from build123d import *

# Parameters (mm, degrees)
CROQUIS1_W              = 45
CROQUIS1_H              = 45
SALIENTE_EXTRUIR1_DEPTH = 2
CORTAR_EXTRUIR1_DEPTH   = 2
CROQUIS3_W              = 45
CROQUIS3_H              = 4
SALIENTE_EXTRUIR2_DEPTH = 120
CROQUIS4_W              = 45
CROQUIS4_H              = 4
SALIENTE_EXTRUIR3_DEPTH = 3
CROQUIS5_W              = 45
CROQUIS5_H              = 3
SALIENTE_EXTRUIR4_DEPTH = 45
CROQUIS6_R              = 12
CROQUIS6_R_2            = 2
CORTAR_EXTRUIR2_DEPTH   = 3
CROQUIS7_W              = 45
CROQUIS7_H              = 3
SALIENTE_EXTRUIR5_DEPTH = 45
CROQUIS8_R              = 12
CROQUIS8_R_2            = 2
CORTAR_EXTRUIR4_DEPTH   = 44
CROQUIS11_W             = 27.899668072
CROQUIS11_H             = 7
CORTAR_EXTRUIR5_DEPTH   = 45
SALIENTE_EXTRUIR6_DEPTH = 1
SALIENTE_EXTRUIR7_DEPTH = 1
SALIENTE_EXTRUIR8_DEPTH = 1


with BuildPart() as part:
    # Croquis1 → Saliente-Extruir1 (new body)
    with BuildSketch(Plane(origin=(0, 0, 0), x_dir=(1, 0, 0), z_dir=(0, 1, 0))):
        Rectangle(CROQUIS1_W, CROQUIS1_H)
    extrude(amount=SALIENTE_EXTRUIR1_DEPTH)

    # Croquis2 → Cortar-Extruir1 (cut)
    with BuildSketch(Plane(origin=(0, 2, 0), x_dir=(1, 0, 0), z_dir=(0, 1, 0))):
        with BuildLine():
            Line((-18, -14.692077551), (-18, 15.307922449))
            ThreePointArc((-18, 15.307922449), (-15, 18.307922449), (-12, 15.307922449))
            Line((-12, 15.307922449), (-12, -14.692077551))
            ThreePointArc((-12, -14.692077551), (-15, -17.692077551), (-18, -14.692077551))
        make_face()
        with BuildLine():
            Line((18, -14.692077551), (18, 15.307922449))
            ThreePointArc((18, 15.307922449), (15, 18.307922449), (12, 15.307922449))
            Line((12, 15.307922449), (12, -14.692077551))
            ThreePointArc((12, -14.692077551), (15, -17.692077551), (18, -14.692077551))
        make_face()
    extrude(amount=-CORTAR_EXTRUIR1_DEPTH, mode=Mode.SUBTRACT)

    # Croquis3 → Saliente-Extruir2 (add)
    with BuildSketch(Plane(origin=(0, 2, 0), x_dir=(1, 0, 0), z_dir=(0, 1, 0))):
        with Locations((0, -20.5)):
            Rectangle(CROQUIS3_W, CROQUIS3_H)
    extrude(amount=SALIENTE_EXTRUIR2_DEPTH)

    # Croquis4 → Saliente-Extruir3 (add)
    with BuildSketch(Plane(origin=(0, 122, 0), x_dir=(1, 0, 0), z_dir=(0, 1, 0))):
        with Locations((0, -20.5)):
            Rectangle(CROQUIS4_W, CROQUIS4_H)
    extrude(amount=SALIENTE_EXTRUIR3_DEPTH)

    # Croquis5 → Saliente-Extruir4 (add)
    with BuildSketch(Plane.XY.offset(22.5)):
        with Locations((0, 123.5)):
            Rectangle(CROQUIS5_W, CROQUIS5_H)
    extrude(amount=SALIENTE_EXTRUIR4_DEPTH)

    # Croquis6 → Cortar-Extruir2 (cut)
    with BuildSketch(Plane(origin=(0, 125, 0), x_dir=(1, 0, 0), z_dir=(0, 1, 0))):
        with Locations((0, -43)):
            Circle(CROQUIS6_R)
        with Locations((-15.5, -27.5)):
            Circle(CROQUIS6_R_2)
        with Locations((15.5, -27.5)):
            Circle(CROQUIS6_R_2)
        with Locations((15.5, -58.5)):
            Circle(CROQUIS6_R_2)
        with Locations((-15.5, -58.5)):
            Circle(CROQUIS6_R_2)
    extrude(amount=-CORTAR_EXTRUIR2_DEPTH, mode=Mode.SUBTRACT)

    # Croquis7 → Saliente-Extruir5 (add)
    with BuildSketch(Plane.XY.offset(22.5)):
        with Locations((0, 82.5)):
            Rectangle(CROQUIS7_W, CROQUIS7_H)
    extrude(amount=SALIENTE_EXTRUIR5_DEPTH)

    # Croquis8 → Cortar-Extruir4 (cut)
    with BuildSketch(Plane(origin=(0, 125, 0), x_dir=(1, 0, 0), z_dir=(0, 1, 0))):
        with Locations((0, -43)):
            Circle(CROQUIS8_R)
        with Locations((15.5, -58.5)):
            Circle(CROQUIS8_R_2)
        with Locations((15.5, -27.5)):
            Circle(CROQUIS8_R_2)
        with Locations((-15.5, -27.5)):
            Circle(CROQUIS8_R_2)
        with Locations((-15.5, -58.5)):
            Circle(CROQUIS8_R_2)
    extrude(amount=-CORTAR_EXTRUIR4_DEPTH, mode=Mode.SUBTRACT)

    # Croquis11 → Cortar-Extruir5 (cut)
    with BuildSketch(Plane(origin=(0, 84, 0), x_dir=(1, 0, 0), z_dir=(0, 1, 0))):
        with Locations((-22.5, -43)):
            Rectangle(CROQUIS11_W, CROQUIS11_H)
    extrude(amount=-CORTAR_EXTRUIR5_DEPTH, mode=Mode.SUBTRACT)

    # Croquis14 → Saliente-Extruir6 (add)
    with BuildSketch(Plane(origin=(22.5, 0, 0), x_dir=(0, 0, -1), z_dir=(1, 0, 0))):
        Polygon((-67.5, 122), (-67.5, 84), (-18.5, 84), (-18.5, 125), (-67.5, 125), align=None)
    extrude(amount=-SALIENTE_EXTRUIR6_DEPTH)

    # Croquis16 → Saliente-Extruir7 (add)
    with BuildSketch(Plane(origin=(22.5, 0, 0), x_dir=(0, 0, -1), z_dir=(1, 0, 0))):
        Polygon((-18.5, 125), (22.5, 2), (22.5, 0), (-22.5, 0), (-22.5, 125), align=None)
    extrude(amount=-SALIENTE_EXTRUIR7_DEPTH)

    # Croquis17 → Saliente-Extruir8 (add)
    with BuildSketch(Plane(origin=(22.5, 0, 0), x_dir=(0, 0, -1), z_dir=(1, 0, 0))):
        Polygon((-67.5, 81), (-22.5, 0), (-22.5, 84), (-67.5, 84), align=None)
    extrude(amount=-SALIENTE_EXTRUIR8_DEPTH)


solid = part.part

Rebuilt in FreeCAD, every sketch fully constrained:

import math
import FreeCAD as App
import Part
import Sketcher

V = App.Vector
Q = App.Units.Quantity

doc = App.newDocument("Part")
params = doc.addObject("Spreadsheet::Sheet", "Params")
for row, (alias, value) in enumerate([
    ("sketch1_width", "45 mm"),
    ("pad1_length", "2 mm"),
    ("sketch2_radius", "3 mm"),
    ("sketch2_height", "30 mm"),
    ("pocket1_length", "2 mm"),
    ("sketch3_width", "45 mm"),
    ("sketch3_height", "4 mm"),
    ("pad2_length", "120 mm"),
    ("sketch4_width", "45 mm"),
    ("sketch4_height", "4 mm"),
    ("pad3_length", "3 mm"),
    ("sketch5_width", "45 mm"),
    ("sketch5_height", "3 mm"),
    ("pad4_length", "45 mm"),
    ("sketch6_diameter", "24 mm"),
    ("sketch6_diameter2", "4 mm"),
    ("pocket2_length", "3 mm"),
    ("sketch7_width", "45 mm"),
    ("sketch7_height", "3 mm"),
    ("pad5_length", "45 mm"),
    ("sketch8_diameter", "24 mm"),
    ("sketch8_diameter2", "4 mm"),
    ("pocket3_length", "44 mm"),
    ("sketch9_height", "7 mm"),
    ("pocket4_length", "45 mm"),
    ("sketch10_width", "41 mm"),
    ("sketch10_height", "49 mm"),
    ("pad6_length", "1 mm"),
    ("sketch11_width", "125 mm"),
    ("sketch11_width2", "2 mm"),
    ("sketch11_height", "4 mm"),
    ("sketch11_height2", "45 mm"),
    ("pad7_length", "1 mm"),
    ("sketch12_width", "84 mm"),
    ("sketch12_width2", "3 mm"),
    ("sketch12_height", "45 mm"),
    ("pad8_length", "1 mm"),
], start=1):
    params.set(f"A{row}", alias)
    params.set(f"B{row}", "=" + value)
    params.setAlias(f"B{row}", alias)

body = doc.addObject("PartDesign::Body", "Body")

# Sketch on XZ plane
sketch1 = body.newObject("Sketcher::SketchObject", "Sketch")
sketch1.AttachmentSupport = (doc.getObject("XZ_Plane"), [""])
sketch1.MapMode = "FlatFace"
sketch1.addGeometry(Part.LineSegment(V(-22.5, -22.5, 0), V(-22.5, 22.5, 0)), False)
sketch1.addGeometry(Part.LineSegment(V(-22.5, 22.5, 0), V(22.5, 22.5, 0)), False)
sketch1.addGeometry(Part.LineSegment(V(22.5, 22.5, 0), V(22.5, -22.5, 0)), False)
sketch1.addGeometry(Part.LineSegment(V(22.5, -22.5, 0), V(-22.5, -22.5, 0)), False)
sketch1.addConstraint(Sketcher.Constraint("Coincident", 0, 2, 1, 1))
sketch1.addConstraint(Sketcher.Constraint("Coincident", 1, 2, 2, 1))
sketch1.addConstraint(Sketcher.Constraint("Coincident", 2, 2, 3, 1))
sketch1.addConstraint(Sketcher.Constraint("Coincident", 3, 2, 0, 1))
sketch1.addConstraint(Sketcher.Constraint("Vertical", 0))
sketch1.addConstraint(Sketcher.Constraint("Horizontal", 1))
sketch1.addConstraint(Sketcher.Constraint("Vertical", 2))
sketch1.addConstraint(Sketcher.Constraint("Horizontal", 3))
sketch1.addConstraint(Sketcher.Constraint("Symmetric", 0, 2, 2, 2, -1, 1))
sketch1.addConstraint(Sketcher.Constraint("Equal", 3, 0))
sketch1.addConstraint(Sketcher.Constraint("DistanceX", 1, 1, 1, 2, Q("45 mm")))
sketch1.setExpression("Constraints[10]", "Params.sketch1_width")
pad1 = body.newObject("PartDesign::Pad", "Pad")
pad1.Profile = sketch1
pad1.setExpression("Length", "Params.pad1_length")
pad1.Reversed = True

# Sketch on XZ plane
sketch2 = body.newObject("Sketcher::SketchObject", "Sketch001")
sketch2.AttachmentSupport = (doc.getObject("XZ_Plane"), [""])
sketch2.MapMode = "FlatFace"
sketch2.AttachmentOffset = App.Placement(V(0, 0, -2), App.Rotation())
sketch2.addGeometry(Part.LineSegment(V(-18, -15.307922, 0), V(-18, 14.692078, 0)), False)
sketch2.addGeometry(Part.ArcOfCircle(Part.Circle(V(-15, 14.692078, 0), V(0, 0, 1), 3), math.radians(0), math.radians(180)), False)
sketch2.addGeometry(Part.LineSegment(V(-12, 14.692078, 0), V(-12, -15.307922, 0)), False)
sketch2.addGeometry(Part.ArcOfCircle(Part.Circle(V(-15, -15.307922, 0), V(0, 0, 1), 3), math.radians(180), math.radians(360)), False)
sketch2.addGeometry(Part.LineSegment(V(18, 14.692078, 0), V(18, -15.307922, 0)), False)
sketch2.addGeometry(Part.ArcOfCircle(Part.Circle(V(15, -15.307922, 0), V(0, 0, 1), 3), math.radians(180), math.radians(360)), False)
sketch2.addGeometry(Part.LineSegment(V(12, -15.307922, 0), V(12, 14.692078, 0)), False)
sketch2.addGeometry(Part.ArcOfCircle(Part.Circle(V(15, 14.692078, 0), V(0, 0, 1), 3), math.radians(0), math.radians(180)), False)
sketch2.addConstraint(Sketcher.Constraint("Tangent", 0, 2, 1, 2))
sketch2.addConstraint(Sketcher.Constraint("Tangent", 1, 1, 2, 1))
sketch2.addConstraint(Sketcher.Constraint("Tangent", 2, 2, 3, 2))
sketch2.addConstraint(Sketcher.Constraint("Tangent", 3, 1, 0, 1))
sketch2.addConstraint(Sketcher.Constraint("Tangent", 4, 2, 5, 2))
sketch2.addConstraint(Sketcher.Constraint("Tangent", 5, 1, 6, 1))
sketch2.addConstraint(Sketcher.Constraint("Tangent", 6, 2, 7, 2))
sketch2.addConstraint(Sketcher.Constraint("Tangent", 7, 1, 4, 1))
sketch2.addConstraint(Sketcher.Constraint("Vertical", 0))
sketch2.addConstraint(Sketcher.Constraint("Vertical", 2))
sketch2.addConstraint(Sketcher.Constraint("Vertical", 4))
sketch2.addConstraint(Sketcher.Constraint("Vertical", 6))
sketch2.addConstraint(Sketcher.Constraint("Equal", 3, 5))
sketch2.addConstraint(Sketcher.Constraint("Symmetric", 3, 3, 5, 3, -2))
sketch2.addConstraint(Sketcher.Constraint("Horizontal", 1, 3, 7, 3))
sketch2.addConstraint(Sketcher.Constraint("Radius", 1, Q("3 mm")))
sketch2.addConstraint(Sketcher.Constraint("DistanceY", 0, 1, 0, 2, Q("30 mm")))
sketch2.addConstraint(Sketcher.Constraint("DistanceX", 1, 3, -1, 1, Q("15 mm")))
sketch2.addConstraint(Sketcher.Constraint("DistanceY", -1, 1, 1, 3, Q("14.692078 mm")))
sketch2.setExpression("Constraints[15]", "Params.sketch2_radius")
sketch2.setExpression("Constraints[16]", "Params.sketch2_height")
pocket1 = body.newObject("PartDesign::Pocket", "Pocket")
pocket1.Profile = sketch2
pocket1.setExpression("Length", "Params.pocket1_length")
pocket1.Reversed = True

# Sketch on XZ plane
sketch3 = body.newObject("Sketcher::SketchObject", "Sketch002")
sketch3.AttachmentSupport = (doc.getObject("XZ_Plane"), [""])
sketch3.MapMode = "FlatFace"
sketch3.AttachmentOffset = App.Placement(V(0, 0, -2), App.Rotation())
sketch3.addGeometry(Part.LineSegment(V(-22.5, 18.5, 0), V(-22.5, 22.5, 0)), False)
sketch3.addGeometry(Part.LineSegment(V(-22.5, 22.5, 0), V(22.5, 22.5, 0)), False)
sketch3.addGeometry(Part.LineSegment(V(22.5, 22.5, 0), V(22.5, 18.5, 0)), False)
sketch3.addGeometry(Part.LineSegment(V(22.5, 18.5, 0), V(-22.5, 18.5, 0)), False)
sketch3.addConstraint(Sketcher.Constraint("Coincident", 0, 2, 1, 1))
sketch3.addConstraint(Sketcher.Constraint("Coincident", 1, 2, 2, 1))
sketch3.addConstraint(Sketcher.Constraint("Coincident", 2, 2, 3, 1))
sketch3.addConstraint(Sketcher.Constraint("Coincident", 3, 2, 0, 1))
sketch3.addConstraint(Sketcher.Constraint("Vertical", 0))
sketch3.addConstraint(Sketcher.Constraint("Horizontal", 1))
sketch3.addConstraint(Sketcher.Constraint("Vertical", 2))
sketch3.addConstraint(Sketcher.Constraint("Horizontal", 3))
sketch3.addConstraint(Sketcher.Constraint("DistanceX", 1, 1, 1, 2, Q("45 mm")))
sketch3.addConstraint(Sketcher.Constraint("DistanceY", 0, 1, 0, 2, Q("4 mm")))
sketch3.addConstraint(Sketcher.Constraint("DistanceX", 0, 2, -1, 1, Q("22.5 mm")))
sketch3.addConstraint(Sketcher.Constraint("DistanceY", -1, 1, 0, 2, Q("22.5 mm")))
sketch3.setExpression("Constraints[8]", "Params.sketch3_width")
sketch3.setExpression("Constraints[9]", "Params.sketch3_height")
pad2 = body.newObject("PartDesign::Pad", "Pad001")
pad2.Profile = sketch3
pad2.setExpression("Length", "Params.pad2_length")
pad2.Reversed = True

# Sketch on XZ plane
sketch4 = body.newObject("Sketcher::SketchObject", "Sketch003")
sketch4.AttachmentSupport = (doc.getObject("XZ_Plane"), [""])
sketch4.MapMode = "FlatFace"
sketch4.AttachmentOffset = App.Placement(V(0, 0, -122), App.Rotation())
sketch4.addGeometry(Part.LineSegment(V(-22.5, 18.5, 0), V(-22.5, 22.5, 0)), False)
sketch4.addGeometry(Part.LineSegment(V(-22.5, 22.5, 0), V(22.5, 22.5, 0)), False)
sketch4.addGeometry(Part.LineSegment(V(22.5, 22.5, 0), V(22.5, 18.5, 0)), False)
sketch4.addGeometry(Part.LineSegment(V(22.5, 18.5, 0), V(-22.5, 18.5, 0)), False)
sketch4.addConstraint(Sketcher.Constraint("Coincident", 0, 2, 1, 1))
sketch4.addConstraint(Sketcher.Constraint("Coincident", 1, 2, 2, 1))
sketch4.addConstraint(Sketcher.Constraint("Coincident", 2, 2, 3, 1))
sketch4.addConstraint(Sketcher.Constraint("Coincident", 3, 2, 0, 1))
sketch4.addConstraint(Sketcher.Constraint("Vertical", 0))
sketch4.addConstraint(Sketcher.Constraint("Horizontal", 1))
sketch4.addConstraint(Sketcher.Constraint("Vertical", 2))
sketch4.addConstraint(Sketcher.Constraint("Horizontal", 3))
sketch4.addConstraint(Sketcher.Constraint("DistanceX", 1, 1, 1, 2, Q("45 mm")))
sketch4.addConstraint(Sketcher.Constraint("DistanceY", 0, 1, 0, 2, Q("4 mm")))
sketch4.addConstraint(Sketcher.Constraint("DistanceX", 0, 2, -1, 1, Q("22.5 mm")))
sketch4.addConstraint(Sketcher.Constraint("DistanceY", -1, 1, 0, 2, Q("22.5 mm")))
sketch4.setExpression("Constraints[8]", "Params.sketch4_width")
sketch4.setExpression("Constraints[9]", "Params.sketch4_height")
pad3 = body.newObject("PartDesign::Pad", "Pad002")
pad3.Profile = sketch4
pad3.setExpression("Length", "Params.pad3_length")
pad3.Reversed = True

# Sketch on XY plane
sketch5 = body.newObject("Sketcher::SketchObject", "Sketch004")
sketch5.AttachmentSupport = (doc.getObject("XY_Plane"), [""])
sketch5.MapMode = "FlatFace"
sketch5.AttachmentOffset = App.Placement(V(0, 0, 22.5), App.Rotation())
sketch5.addGeometry(Part.LineSegment(V(-22.5, 125, 0), V(-22.5, 122, 0)), False)
sketch5.addGeometry(Part.LineSegment(V(-22.5, 122, 0), V(22.5, 122, 0)), False)
sketch5.addGeometry(Part.LineSegment(V(22.5, 122, 0), V(22.5, 125, 0)), False)
sketch5.addGeometry(Part.LineSegment(V(22.5, 125, 0), V(-22.5, 125, 0)), False)
sketch5.addConstraint(Sketcher.Constraint("Coincident", 0, 2, 1, 1))
sketch5.addConstraint(Sketcher.Constraint("Coincident", 1, 2, 2, 1))
sketch5.addConstraint(Sketcher.Constraint("Coincident", 2, 2, 3, 1))
sketch5.addConstraint(Sketcher.Constraint("Coincident", 3, 2, 0, 1))
sketch5.addConstraint(Sketcher.Constraint("Vertical", 0))
sketch5.addConstraint(Sketcher.Constraint("Horizontal", 1))
sketch5.addConstraint(Sketcher.Constraint("Vertical", 2))
sketch5.addConstraint(Sketcher.Constraint("Horizontal", 3))
sketch5.addConstraint(Sketcher.Constraint("DistanceX", 1, 1, 1, 2, Q("45 mm")))
sketch5.addConstraint(Sketcher.Constraint("DistanceY", 0, 2, 0, 1, Q("3 mm")))
sketch5.addConstraint(Sketcher.Constraint("DistanceY", -1, 1, 0, 2, Q("122 mm")))
sketch5.addConstraint(Sketcher.Constraint("DistanceX", 0, 2, -1, 1, Q("22.5 mm")))
sketch5.setExpression("Constraints[8]", "Params.sketch5_width")
sketch5.setExpression("Constraints[9]", "Params.sketch5_height")
pad4 = body.newObject("PartDesign::Pad", "Pad003")
pad4.Profile = sketch5
pad4.setExpression("Length", "Params.pad4_length")

# Sketch on XZ plane
sketch6 = body.newObject("Sketcher::SketchObject", "Sketch005")
sketch6.AttachmentSupport = (doc.getObject("XZ_Plane"), [""])
sketch6.MapMode = "FlatFace"
sketch6.AttachmentOffset = App.Placement(V(0, 0, -125), App.Rotation())
sketch6.addGeometry(Part.Circle(V(0, 43, 0), V(0, 0, 1), 12), False)
sketch6.addGeometry(Part.Circle(V(-15.5, 27.5, 0), V(0, 0, 1), 2), False)
sketch6.addGeometry(Part.Circle(V(15.5, 27.5, 0), V(0, 0, 1), 2), False)
sketch6.addGeometry(Part.Circle(V(15.5, 58.5, 0), V(0, 0, 1), 2), False)
sketch6.addGeometry(Part.Circle(V(-15.5, 58.5, 0), V(0, 0, 1), 2), False)
sketch6.addConstraint(Sketcher.Constraint("Equal", 1, 2))
sketch6.addConstraint(Sketcher.Constraint("Equal", 2, 3))
sketch6.addConstraint(Sketcher.Constraint("Equal", 3, 4))
sketch6.addConstraint(Sketcher.Constraint("Symmetric", 1, 3, 2, 3, -2))
sketch6.addConstraint(Sketcher.Constraint("Symmetric", 3, 3, 4, 3, -2))
sketch6.addConstraint(Sketcher.Constraint("PointOnObject", 0, 3, -2))
sketch6.addConstraint(Sketcher.Constraint("Vertical", 2, 3, 3, 3))
sketch6.addConstraint(Sketcher.Constraint("Diameter", 0, Q("24 mm")))
sketch6.addConstraint(Sketcher.Constraint("Diameter", 1, Q("4 mm")))
sketch6.addConstraint(Sketcher.Constraint("DistanceY", -1, 1, 0, 3, Q("43 mm")))
sketch6.addConstraint(Sketcher.Constraint("DistanceX", 1, 3, 2, 3, Q("31 mm")))
sketch6.addConstraint(Sketcher.Constraint("DistanceY", 2, 3, 3, 3, Q("31 mm")))
sketch6.addConstraint(Sketcher.Constraint("DistanceY", -1, 1, 1, 3, Q("27.5 mm")))
sketch6.setExpression("Constraints[7]", "Params.sketch6_diameter")
sketch6.setExpression("Constraints[8]", "Params.sketch6_diameter2")
pocket2 = body.newObject("PartDesign::Pocket", "Pocket001")
pocket2.Profile = sketch6
pocket2.setExpression("Length", "Params.pocket2_length")
pocket2.Reversed = True

# Sketch on XY plane
sketch7 = body.newObject("Sketcher::SketchObject", "Sketch006")
sketch7.AttachmentSupport = (doc.getObject("XY_Plane"), [""])
sketch7.MapMode = "FlatFace"
sketch7.AttachmentOffset = App.Placement(V(0, 0, 22.5), App.Rotation())
sketch7.addGeometry(Part.LineSegment(V(-22.5, 84, 0), V(-22.5, 81, 0)), False)
sketch7.addGeometry(Part.LineSegment(V(-22.5, 81, 0), V(22.5, 81, 0)), False)
sketch7.addGeometry(Part.LineSegment(V(22.5, 81, 0), V(22.5, 84, 0)), False)
sketch7.addGeometry(Part.LineSegment(V(22.5, 84, 0), V(-22.5, 84, 0)), False)
sketch7.addConstraint(Sketcher.Constraint("Coincident", 0, 2, 1, 1))
sketch7.addConstraint(Sketcher.Constraint("Coincident", 1, 2, 2, 1))
sketch7.addConstraint(Sketcher.Constraint("Coincident", 2, 2, 3, 1))
sketch7.addConstraint(Sketcher.Constraint("Coincident", 3, 2, 0, 1))
sketch7.addConstraint(Sketcher.Constraint("Vertical", 0))
sketch7.addConstraint(Sketcher.Constraint("Horizontal", 1))
sketch7.addConstraint(Sketcher.Constraint("Vertical", 2))
sketch7.addConstraint(Sketcher.Constraint("Horizontal", 3))
sketch7.addConstraint(Sketcher.Constraint("DistanceX", 1, 1, 1, 2, Q("45 mm")))
sketch7.addConstraint(Sketcher.Constraint("DistanceY", 0, 2, 0, 1, Q("3 mm")))
sketch7.addConstraint(Sketcher.Constraint("DistanceY", -1, 1, 0, 2, Q("81 mm")))
sketch7.addConstraint(Sketcher.Constraint("DistanceX", 0, 2, -1, 1, Q("22.5 mm")))
sketch7.setExpression("Constraints[8]", "Params.sketch7_width")
sketch7.setExpression("Constraints[9]", "Params.sketch7_height")
pad5 = body.newObject("PartDesign::Pad", "Pad004")
pad5.Profile = sketch7
pad5.setExpression("Length", "Params.pad5_length")

# Sketch on XZ plane
sketch8 = body.newObject("Sketcher::SketchObject", "Sketch007")
sketch8.AttachmentSupport = (doc.getObject("XZ_Plane"), [""])
sketch8.MapMode = "FlatFace"
sketch8.AttachmentOffset = App.Placement(V(0, 0, -125), App.Rotation())
sketch8.addGeometry(Part.Circle(V(0, 43, 0), V(0, 0, 1), 12), False)
sketch8.addGeometry(Part.Circle(V(15.5, 58.5, 0), V(0, 0, 1), 2), False)
sketch8.addGeometry(Part.Circle(V(15.5, 27.5, 0), V(0, 0, 1), 2), False)
sketch8.addGeometry(Part.Circle(V(-15.5, 27.5, 0), V(0, 0, 1), 2), False)
sketch8.addGeometry(Part.Circle(V(-15.5, 58.5, 0), V(0, 0, 1), 2), False)
sketch8.addConstraint(Sketcher.Constraint("Equal", 1, 2))
sketch8.addConstraint(Sketcher.Constraint("Equal", 2, 3))
sketch8.addConstraint(Sketcher.Constraint("Equal", 3, 4))
sketch8.addConstraint(Sketcher.Constraint("Symmetric", 2, 3, 3, 3, -2))
sketch8.addConstraint(Sketcher.Constraint("Symmetric", 1, 3, 4, 3, -2))
sketch8.addConstraint(Sketcher.Constraint("PointOnObject", 0, 3, -2))
sketch8.addConstraint(Sketcher.Constraint("Vertical", 1, 3, 2, 3))
sketch8.addConstraint(Sketcher.Constraint("Diameter", 0, Q("24 mm")))
sketch8.addConstraint(Sketcher.Constraint("Diameter", 1, Q("4 mm")))
sketch8.addConstraint(Sketcher.Constraint("DistanceY", -1, 1, 0, 3, Q("43 mm")))
sketch8.addConstraint(Sketcher.Constraint("DistanceY", 2, 3, 1, 3, Q("31 mm")))
sketch8.addConstraint(Sketcher.Constraint("DistanceX", 3, 3, 2, 3, Q("31 mm")))
sketch8.addConstraint(Sketcher.Constraint("DistanceY", -1, 1, 1, 3, Q("58.5 mm")))
sketch8.setExpression("Constraints[7]", "Params.sketch8_diameter")
sketch8.setExpression("Constraints[8]", "Params.sketch8_diameter2")
pocket3 = body.newObject("PartDesign::Pocket", "Pocket002")
pocket3.Profile = sketch8
pocket3.setExpression("Length", "Params.pocket3_length")
pocket3.Reversed = True

# Sketch on XZ plane
sketch9 = body.newObject("Sketcher::SketchObject", "Sketch008")
sketch9.AttachmentSupport = (doc.getObject("XZ_Plane"), [""])
sketch9.MapMode = "FlatFace"
sketch9.AttachmentOffset = App.Placement(V(0, 0, -84), App.Rotation())
sketch9.addGeometry(Part.LineSegment(V(-36.449834, 39.5, 0), V(-36.449834, 46.5, 0)), False)
sketch9.addGeometry(Part.LineSegment(V(-36.449834, 46.5, 0), V(-8.550166, 46.5, 0)), False)
sketch9.addGeometry(Part.LineSegment(V(-8.550166, 46.5, 0), V(-8.550166, 39.5, 0)), False)
sketch9.addGeometry(Part.LineSegment(V(-8.550166, 39.5, 0), V(-36.449834, 39.5, 0)), False)
sketch9.addConstraint(Sketcher.Constraint("Coincident", 0, 2, 1, 1))
sketch9.addConstraint(Sketcher.Constraint("Coincident", 1, 2, 2, 1))
sketch9.addConstraint(Sketcher.Constraint("Coincident", 2, 2, 3, 1))
sketch9.addConstraint(Sketcher.Constraint("Coincident", 3, 2, 0, 1))
sketch9.addConstraint(Sketcher.Constraint("Vertical", 0))
sketch9.addConstraint(Sketcher.Constraint("Horizontal", 1))
sketch9.addConstraint(Sketcher.Constraint("Vertical", 2))
sketch9.addConstraint(Sketcher.Constraint("Horizontal", 3))
sketch9.addConstraint(Sketcher.Constraint("DistanceY", 0, 1, 0, 2, Q("7 mm")))
sketch9.addConstraint(Sketcher.Constraint("DistanceY", -1, 1, 0, 2, Q("46.5 mm")))
sketch9.addConstraint(Sketcher.Constraint("DistanceX", 1, 1, 1, 2, Q("27.899668 mm")))
sketch9.addConstraint(Sketcher.Constraint("DistanceX", 0, 2, -1, 1, Q("36.449834 mm")))
sketch9.setExpression("Constraints[8]", "Params.sketch9_height")
pocket4 = body.newObject("PartDesign::Pocket", "Pocket003")
pocket4.Profile = sketch9
pocket4.setExpression("Length", "Params.pocket4_length")
pocket4.Reversed = True

# Sketch on YZ plane
sketch10 = body.newObject("Sketcher::SketchObject", "Sketch009")
sketch10.AttachmentSupport = (doc.getObject("YZ_Plane"), [""])
sketch10.MapMode = "FlatFace"
sketch10.AttachmentOffset = App.Placement(V(0, 0, 22.5), App.Rotation())
sketch10.addGeometry(Part.LineSegment(V(84, 67.5, 0), V(84, 18.5, 0)), False)
sketch10.addGeometry(Part.LineSegment(V(84, 18.5, 0), V(125, 18.5, 0)), False)
sketch10.addGeometry(Part.LineSegment(V(125, 18.5, 0), V(125, 67.5, 0)), False)
sketch10.addGeometry(Part.LineSegment(V(125, 67.5, 0), V(84, 67.5, 0)), False)
sketch10.addConstraint(Sketcher.Constraint("Coincident", 0, 2, 1, 1))
sketch10.addConstraint(Sketcher.Constraint("Coincident", 1, 2, 2, 1))
sketch10.addConstraint(Sketcher.Constraint("Coincident", 2, 2, 3, 1))
sketch10.addConstraint(Sketcher.Constraint("Coincident", 3, 2, 0, 1))
sketch10.addConstraint(Sketcher.Constraint("Vertical", 0))
sketch10.addConstraint(Sketcher.Constraint("Horizontal", 1))
sketch10.addConstraint(Sketcher.Constraint("Vertical", 2))
sketch10.addConstraint(Sketcher.Constraint("Horizontal", 3))
sketch10.addConstraint(Sketcher.Constraint("DistanceX", 1, 1, 1, 2, Q("41 mm")))
sketch10.addConstraint(Sketcher.Constraint("DistanceY", 0, 2, 0, 1, Q("49 mm")))
sketch10.addConstraint(Sketcher.Constraint("DistanceX", -1, 1, 0, 2, Q("84 mm")))
sketch10.addConstraint(Sketcher.Constraint("DistanceY", -1, 1, 0, 2, Q("18.5 mm")))
sketch10.setExpression("Constraints[8]", "Params.sketch10_width")
sketch10.setExpression("Constraints[9]", "Params.sketch10_height")
pad6 = body.newObject("PartDesign::Pad", "Pad005")
pad6.Profile = sketch10
pad6.setExpression("Length", "Params.pad6_length")
pad6.Reversed = True

# Sketch on YZ plane
sketch11 = body.newObject("Sketcher::SketchObject", "Sketch010")
sketch11.AttachmentSupport = (doc.getObject("YZ_Plane"), [""])
sketch11.MapMode = "FlatFace"
sketch11.AttachmentOffset = App.Placement(V(0, 0, 22.5), App.Rotation())
sketch11.addGeometry(Part.LineSegment(V(2, -22.5, 0), V(125, 18.5, 0)), False)
sketch11.addGeometry(Part.LineSegment(V(125, 18.5, 0), V(125, 22.5, 0)), False)
sketch11.addGeometry(Part.LineSegment(V(125, 22.5, 0), V(0, 22.5, 0)), False)
sketch11.addGeometry(Part.LineSegment(V(0, 22.5, 0), V(0, -22.5, 0)), False)
sketch11.addGeometry(Part.LineSegment(V(0, -22.5, 0), V(2, -22.5, 0)), False)
sketch11.addConstraint(Sketcher.Constraint("Coincident", 0, 2, 1, 1))
sketch11.addConstraint(Sketcher.Constraint("Coincident", 1, 2, 2, 1))
sketch11.addConstraint(Sketcher.Constraint("Coincident", 2, 2, 3, 1))
sketch11.addConstraint(Sketcher.Constraint("Coincident", 3, 2, 4, 1))
sketch11.addConstraint(Sketcher.Constraint("Coincident", 4, 2, 0, 1))
sketch11.addConstraint(Sketcher.Constraint("Vertical", 1))
sketch11.addConstraint(Sketcher.Constraint("Horizontal", 2))
sketch11.addConstraint(Sketcher.Constraint("Vertical", 3))
sketch11.addConstraint(Sketcher.Constraint("Horizontal", 4))
sketch11.addConstraint(Sketcher.Constraint("Symmetric", 2, 2, 3, 2, -1, 1))
sketch11.addConstraint(Sketcher.Constraint("DistanceX", 2, 2, 2, 1, Q("125 mm")))
sketch11.addConstraint(Sketcher.Constraint("DistanceX", 4, 1, 4, 2, Q("2 mm")))
sketch11.addConstraint(Sketcher.Constraint("DistanceY", 1, 1, 1, 2, Q("4 mm")))
sketch11.addConstraint(Sketcher.Constraint("DistanceY", 3, 2, 3, 1, Q("45 mm")))
sketch11.setExpression("Constraints[10]", "Params.sketch11_width")
sketch11.setExpression("Constraints[11]", "Params.sketch11_width2")
sketch11.setExpression("Constraints[12]", "Params.sketch11_height")
sketch11.setExpression("Constraints[13]", "Params.sketch11_height2")
pad7 = body.newObject("PartDesign::Pad", "Pad006")
pad7.Profile = sketch11
pad7.setExpression("Length", "Params.pad7_length")
pad7.Reversed = True

# Sketch on YZ plane
sketch12 = body.newObject("Sketcher::SketchObject", "Sketch011")
sketch12.AttachmentSupport = (doc.getObject("YZ_Plane"), [""])
sketch12.MapMode = "FlatFace"
sketch12.AttachmentOffset = App.Placement(V(0, 0, 22.5), App.Rotation())
sketch12.addGeometry(Part.LineSegment(V(81, 67.5, 0), V(0, 22.5, 0)), False)
sketch12.addGeometry(Part.LineSegment(V(0, 22.5, 0), V(84, 22.5, 0)), False)
sketch12.addGeometry(Part.LineSegment(V(84, 22.5, 0), V(84, 67.5, 0)), False)
sketch12.addGeometry(Part.LineSegment(V(84, 67.5, 0), V(81, 67.5, 0)), False)
sketch12.addConstraint(Sketcher.Constraint("Coincident", 0, 2, 1, 1))
sketch12.addConstraint(Sketcher.Constraint("Coincident", 1, 2, 2, 1))
sketch12.addConstraint(Sketcher.Constraint("Coincident", 2, 2, 3, 1))
sketch12.addConstraint(Sketcher.Constraint("Coincident", 3, 2, 0, 1))
sketch12.addConstraint(Sketcher.Constraint("Horizontal", 1))
sketch12.addConstraint(Sketcher.Constraint("Vertical", 2))
sketch12.addConstraint(Sketcher.Constraint("Horizontal", 3))
sketch12.addConstraint(Sketcher.Constraint("PointOnObject", 0, 2, -2))
sketch12.addConstraint(Sketcher.Constraint("DistanceX", 1, 1, 1, 2, Q("84 mm")))
sketch12.addConstraint(Sketcher.Constraint("DistanceX", 3, 2, 3, 1, Q("3 mm")))
sketch12.addConstraint(Sketcher.Constraint("DistanceY", 2, 1, 2, 2, Q("45 mm")))
sketch12.addConstraint(Sketcher.Constraint("DistanceY", -1, 1, 0, 2, Q("22.5 mm")))
sketch12.setExpression("Constraints[8]", "Params.sketch12_width")
sketch12.setExpression("Constraints[9]", "Params.sketch12_width2")
sketch12.setExpression("Constraints[10]", "Params.sketch12_height")
pad8 = body.newObject("PartDesign::Pad", "Pad007")
pad8.Profile = sketch12
pad8.setExpression("Length", "Params.pad8_length")
pad8.Reversed = True

doc.recompute()
